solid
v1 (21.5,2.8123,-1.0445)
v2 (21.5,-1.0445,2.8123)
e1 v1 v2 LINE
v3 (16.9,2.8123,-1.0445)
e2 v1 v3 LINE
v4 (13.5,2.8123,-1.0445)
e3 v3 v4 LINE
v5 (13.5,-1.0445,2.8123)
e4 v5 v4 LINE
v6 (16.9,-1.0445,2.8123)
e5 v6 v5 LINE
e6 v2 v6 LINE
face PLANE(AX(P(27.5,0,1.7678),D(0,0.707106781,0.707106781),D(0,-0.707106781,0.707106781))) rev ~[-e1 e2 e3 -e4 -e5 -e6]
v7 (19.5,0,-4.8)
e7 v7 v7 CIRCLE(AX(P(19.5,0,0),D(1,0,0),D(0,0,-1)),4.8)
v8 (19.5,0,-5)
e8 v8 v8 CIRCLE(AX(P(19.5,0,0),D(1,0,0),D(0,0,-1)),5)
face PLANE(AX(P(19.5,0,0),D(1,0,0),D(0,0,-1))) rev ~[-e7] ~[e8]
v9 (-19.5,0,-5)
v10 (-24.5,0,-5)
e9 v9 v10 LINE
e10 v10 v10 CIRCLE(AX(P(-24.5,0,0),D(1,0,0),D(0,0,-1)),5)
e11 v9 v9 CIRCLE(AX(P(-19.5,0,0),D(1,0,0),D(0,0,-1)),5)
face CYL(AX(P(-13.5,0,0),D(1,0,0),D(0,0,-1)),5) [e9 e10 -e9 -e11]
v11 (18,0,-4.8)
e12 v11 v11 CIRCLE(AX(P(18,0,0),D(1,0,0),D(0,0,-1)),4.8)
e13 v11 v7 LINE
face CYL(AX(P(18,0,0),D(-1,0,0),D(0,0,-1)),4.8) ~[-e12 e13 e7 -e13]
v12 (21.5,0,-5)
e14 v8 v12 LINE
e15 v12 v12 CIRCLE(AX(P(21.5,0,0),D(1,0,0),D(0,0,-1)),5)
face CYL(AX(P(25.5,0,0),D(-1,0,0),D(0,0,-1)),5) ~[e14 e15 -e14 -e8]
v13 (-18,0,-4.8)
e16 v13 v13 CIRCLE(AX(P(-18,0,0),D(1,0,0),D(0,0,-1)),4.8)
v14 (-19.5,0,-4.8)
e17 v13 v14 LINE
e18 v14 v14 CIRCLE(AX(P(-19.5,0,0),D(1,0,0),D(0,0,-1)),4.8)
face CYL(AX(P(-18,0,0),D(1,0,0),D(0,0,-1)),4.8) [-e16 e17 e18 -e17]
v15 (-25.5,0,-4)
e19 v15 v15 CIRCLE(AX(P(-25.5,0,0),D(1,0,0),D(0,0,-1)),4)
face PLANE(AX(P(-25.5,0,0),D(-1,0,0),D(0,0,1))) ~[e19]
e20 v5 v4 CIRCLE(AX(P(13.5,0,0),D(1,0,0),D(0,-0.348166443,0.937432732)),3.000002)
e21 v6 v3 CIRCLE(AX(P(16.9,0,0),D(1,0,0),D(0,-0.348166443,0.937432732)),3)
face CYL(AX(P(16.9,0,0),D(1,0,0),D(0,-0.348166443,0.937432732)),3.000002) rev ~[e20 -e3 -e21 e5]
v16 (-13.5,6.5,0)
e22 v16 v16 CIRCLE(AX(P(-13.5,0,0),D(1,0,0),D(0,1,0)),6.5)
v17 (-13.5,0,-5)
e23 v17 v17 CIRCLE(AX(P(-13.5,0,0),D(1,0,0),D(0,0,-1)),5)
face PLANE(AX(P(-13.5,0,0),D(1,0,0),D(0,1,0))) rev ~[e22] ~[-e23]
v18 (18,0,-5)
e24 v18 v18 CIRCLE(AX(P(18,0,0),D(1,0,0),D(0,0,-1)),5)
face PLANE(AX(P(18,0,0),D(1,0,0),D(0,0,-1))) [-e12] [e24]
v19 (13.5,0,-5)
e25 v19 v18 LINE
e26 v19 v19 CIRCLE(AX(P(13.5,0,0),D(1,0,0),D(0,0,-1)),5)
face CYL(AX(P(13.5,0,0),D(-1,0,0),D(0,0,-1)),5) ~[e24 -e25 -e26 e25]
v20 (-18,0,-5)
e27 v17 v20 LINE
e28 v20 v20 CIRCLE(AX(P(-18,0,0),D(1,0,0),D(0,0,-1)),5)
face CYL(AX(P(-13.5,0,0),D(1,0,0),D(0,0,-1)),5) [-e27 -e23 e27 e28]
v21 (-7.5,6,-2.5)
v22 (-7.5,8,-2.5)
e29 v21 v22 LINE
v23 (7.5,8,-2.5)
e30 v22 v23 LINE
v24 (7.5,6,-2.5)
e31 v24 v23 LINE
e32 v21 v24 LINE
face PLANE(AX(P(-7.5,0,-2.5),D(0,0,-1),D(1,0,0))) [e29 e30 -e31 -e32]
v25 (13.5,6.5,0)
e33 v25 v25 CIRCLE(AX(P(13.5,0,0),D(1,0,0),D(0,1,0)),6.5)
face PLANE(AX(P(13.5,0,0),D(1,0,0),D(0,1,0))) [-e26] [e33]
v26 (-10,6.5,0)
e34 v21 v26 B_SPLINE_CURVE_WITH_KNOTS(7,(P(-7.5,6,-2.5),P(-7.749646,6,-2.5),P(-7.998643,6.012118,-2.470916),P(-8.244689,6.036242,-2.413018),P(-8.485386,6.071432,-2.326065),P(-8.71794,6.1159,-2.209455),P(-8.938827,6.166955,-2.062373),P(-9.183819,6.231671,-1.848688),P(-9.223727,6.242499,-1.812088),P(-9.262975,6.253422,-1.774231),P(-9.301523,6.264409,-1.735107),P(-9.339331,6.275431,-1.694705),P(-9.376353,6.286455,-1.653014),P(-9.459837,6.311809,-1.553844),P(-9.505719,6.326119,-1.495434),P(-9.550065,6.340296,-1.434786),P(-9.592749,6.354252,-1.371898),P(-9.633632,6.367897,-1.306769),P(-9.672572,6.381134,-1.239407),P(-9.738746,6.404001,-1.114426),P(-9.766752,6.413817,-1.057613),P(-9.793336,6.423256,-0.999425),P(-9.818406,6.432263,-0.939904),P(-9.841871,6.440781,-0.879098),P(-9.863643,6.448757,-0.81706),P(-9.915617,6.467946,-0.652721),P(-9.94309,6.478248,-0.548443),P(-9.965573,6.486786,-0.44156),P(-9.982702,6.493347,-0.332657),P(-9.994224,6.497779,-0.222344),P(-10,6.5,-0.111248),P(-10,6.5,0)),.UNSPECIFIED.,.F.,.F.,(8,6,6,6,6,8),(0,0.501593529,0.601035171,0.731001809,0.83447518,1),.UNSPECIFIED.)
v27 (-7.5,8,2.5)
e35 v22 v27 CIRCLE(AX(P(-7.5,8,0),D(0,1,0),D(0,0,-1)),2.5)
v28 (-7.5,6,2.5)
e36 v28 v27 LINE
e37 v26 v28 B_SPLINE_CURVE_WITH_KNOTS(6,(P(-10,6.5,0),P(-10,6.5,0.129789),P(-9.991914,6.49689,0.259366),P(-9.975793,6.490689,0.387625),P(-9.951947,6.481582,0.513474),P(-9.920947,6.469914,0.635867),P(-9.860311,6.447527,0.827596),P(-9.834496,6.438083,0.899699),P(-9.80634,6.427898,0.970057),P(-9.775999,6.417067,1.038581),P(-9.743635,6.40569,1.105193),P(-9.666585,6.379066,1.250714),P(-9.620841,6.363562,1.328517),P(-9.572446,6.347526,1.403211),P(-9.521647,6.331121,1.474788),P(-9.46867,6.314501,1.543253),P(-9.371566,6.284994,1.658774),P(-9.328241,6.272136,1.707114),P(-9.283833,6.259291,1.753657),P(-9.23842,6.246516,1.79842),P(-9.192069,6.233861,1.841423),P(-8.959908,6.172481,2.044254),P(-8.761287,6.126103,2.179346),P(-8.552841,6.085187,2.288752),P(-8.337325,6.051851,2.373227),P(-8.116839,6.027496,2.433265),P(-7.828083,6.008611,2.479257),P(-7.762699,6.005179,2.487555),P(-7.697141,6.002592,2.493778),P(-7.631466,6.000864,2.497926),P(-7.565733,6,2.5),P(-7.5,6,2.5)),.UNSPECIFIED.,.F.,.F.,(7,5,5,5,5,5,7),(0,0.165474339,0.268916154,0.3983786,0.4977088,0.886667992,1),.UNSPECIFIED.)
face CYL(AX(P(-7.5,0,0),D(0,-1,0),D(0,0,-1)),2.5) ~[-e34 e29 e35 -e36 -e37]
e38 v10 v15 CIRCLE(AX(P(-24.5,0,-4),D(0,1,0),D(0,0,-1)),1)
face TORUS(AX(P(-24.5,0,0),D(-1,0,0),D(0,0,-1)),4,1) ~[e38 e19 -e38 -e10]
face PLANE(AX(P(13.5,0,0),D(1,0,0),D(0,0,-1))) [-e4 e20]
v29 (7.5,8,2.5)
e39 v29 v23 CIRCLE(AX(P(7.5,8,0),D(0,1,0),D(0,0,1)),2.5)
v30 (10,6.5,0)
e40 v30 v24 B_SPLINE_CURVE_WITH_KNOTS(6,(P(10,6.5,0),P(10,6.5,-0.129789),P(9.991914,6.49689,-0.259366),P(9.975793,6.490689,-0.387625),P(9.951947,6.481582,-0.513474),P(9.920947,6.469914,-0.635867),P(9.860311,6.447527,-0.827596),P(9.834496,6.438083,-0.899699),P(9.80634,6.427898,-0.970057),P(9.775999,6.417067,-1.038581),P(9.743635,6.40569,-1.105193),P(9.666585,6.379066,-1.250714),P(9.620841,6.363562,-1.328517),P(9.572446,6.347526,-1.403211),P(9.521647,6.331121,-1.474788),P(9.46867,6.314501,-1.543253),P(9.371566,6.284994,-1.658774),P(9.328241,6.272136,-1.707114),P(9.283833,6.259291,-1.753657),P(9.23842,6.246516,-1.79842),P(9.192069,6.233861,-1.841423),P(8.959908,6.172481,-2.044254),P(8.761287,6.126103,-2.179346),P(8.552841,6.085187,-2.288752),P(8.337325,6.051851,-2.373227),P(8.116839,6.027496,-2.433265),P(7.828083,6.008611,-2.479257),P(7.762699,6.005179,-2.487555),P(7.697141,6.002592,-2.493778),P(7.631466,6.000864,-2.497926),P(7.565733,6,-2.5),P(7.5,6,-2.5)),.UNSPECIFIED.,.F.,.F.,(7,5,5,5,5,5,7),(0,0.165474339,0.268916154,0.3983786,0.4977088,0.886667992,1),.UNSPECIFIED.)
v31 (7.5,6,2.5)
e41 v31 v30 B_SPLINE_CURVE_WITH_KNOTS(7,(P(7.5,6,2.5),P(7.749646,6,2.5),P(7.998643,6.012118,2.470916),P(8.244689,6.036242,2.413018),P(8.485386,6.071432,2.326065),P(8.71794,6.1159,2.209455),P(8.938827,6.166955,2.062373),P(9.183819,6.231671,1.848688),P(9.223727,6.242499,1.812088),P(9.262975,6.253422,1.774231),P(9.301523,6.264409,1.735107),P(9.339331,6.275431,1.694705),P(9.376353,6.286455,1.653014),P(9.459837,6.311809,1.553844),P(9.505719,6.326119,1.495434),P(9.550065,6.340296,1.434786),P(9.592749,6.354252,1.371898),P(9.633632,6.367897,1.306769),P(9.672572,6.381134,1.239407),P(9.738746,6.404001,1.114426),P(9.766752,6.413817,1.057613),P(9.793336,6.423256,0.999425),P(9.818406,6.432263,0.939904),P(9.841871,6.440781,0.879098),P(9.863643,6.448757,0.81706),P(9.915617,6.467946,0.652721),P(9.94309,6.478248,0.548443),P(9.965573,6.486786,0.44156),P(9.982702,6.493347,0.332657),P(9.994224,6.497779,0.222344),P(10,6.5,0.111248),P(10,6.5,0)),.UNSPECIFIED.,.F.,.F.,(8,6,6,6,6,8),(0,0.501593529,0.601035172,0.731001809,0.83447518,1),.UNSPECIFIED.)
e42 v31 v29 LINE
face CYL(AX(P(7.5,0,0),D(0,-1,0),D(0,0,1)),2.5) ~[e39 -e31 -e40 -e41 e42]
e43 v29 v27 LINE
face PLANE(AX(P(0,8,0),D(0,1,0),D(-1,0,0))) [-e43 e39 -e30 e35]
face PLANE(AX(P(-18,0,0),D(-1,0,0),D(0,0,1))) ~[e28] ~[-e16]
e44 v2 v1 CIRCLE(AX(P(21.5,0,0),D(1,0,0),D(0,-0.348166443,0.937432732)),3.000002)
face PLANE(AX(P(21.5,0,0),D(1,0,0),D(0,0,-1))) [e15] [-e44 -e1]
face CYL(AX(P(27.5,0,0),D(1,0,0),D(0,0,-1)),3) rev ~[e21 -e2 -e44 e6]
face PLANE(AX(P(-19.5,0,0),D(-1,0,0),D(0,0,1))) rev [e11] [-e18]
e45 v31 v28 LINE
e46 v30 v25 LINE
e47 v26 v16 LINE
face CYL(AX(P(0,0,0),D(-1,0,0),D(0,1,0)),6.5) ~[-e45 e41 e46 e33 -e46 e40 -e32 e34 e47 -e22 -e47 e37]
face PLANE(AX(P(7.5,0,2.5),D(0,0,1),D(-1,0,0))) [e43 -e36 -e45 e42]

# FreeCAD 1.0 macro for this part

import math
import FreeCAD as App
import Part
import Sketcher

V = App.Vector
Q = App.Units.Quantity


def edges_at(feature, points):
    """Names of the edges that pass closest to the given points."""
    edges = feature.Shape.Edges
    near = lambda p: min(range(len(edges)), key=lambda i: edges[i].distToShape(Part.Vertex(*p))[0])
    return sorted({f"Edge{near(p) + 1}" for p in points})

doc = App.newDocument("Part")
params = doc.addObject("Spreadsheet::Sheet", "Params")
for row, (alias, value) in enumerate([
    ("sketch1_diameter", "13 mm"),
    ("pad1_length", "27 mm"),
    ("sketch2_diameter", "10 mm"),
    ("pad2_length", "12 mm"),
    ("sketch3_diameter", "9.6 mm"),
    ("sketch3_diameter2", "10 mm"),
    ("pocket1_length", "1.5 mm"),
    ("sketch4_radius", "2.5 mm"),
    ("sketch4_width", "15 mm"),
    ("pad3_length", "8 mm"),
    ("fillet_radius", "1 mm"),
    ("sketch5_diameter", "10 mm"),
    ("pad4_length", "2 mm"),
    ("sketch6_radius", "3 mm"),
    ("pocket2_length", "10.6 mm"),
    ("sketch7_diameter", "10 mm"),
    ("sketch7_radius", "3 mm"),
    ("pocket3_length", "4.6 mm"),
    ("sketch8_diameter", "10 mm"),
    ("sketch8_radius", "3 mm"),
    ("pocket4_length", "1.4 mm"),
    ("sketch9_radius", "3 mm"),
    ("pocket5_length", "3.4 mm"),
], start=1):
    params.set(f"A{row}", alias)
    params.set(f"B{row}", "=" + value)
    params.setAlias(f"B{row}", alias)

body = doc.addObject("PartDesign::Body", "Body")

# Sketch on YZ plane
sketch1 = body.newObject("Sketcher::SketchObject", "Sketch")
sketch1.AttachmentSupport = (doc.getObject("YZ_Plane"), [""])
sketch1.MapMode = "FlatFace"
sketch1.addGeometry(Part.Circle(V(0, 0, 0), V(0, 0, 1), 6), False)
sketch1.addConstraint([
    Sketcher.Constraint("Coincident", 0, 3, -1, 1),
    Sketcher.Constraint("Diameter", 0, Q("13 mm")),
])
sketch1.setExpression("Constraints[1]", "Params.sketch1_diameter")
pad1 = body.newObject("PartDesign::Pad", "Pad")
pad1.Profile = sketch1
pad1.setExpression("Length", "Params.pad1_length")
pad1.Midplane = True

# Sketch on YZ plane
sketch2 = body.newObject("Sketcher::SketchObject", "Sketch001")
sketch2.AttachmentSupport = (doc.getObject("YZ_Plane"), [""])
sketch2.MapMode = "FlatFace"
sketch2.AttachmentOffset = App.Placement(V(0, 0, 13.5), App.Rotation())
sketch2.addGeometry(Part.Circle(V(0, 0, 0), V(0, 0, 1), 5), False)
sketch2.addConstraint([
    Sketcher.Constraint("Coincident", 0, 3, -1, 1),
    Sketcher.Constraint("Diameter", 0, Q("10 mm")),
])
sketch2.setExpression("Constraints[1]", "Params.sketch2_diameter")
pad2 = body.newObject("PartDesign::Pad", "Pad001")
pad2.Profile = sketch2
pad2.setExpression("Length", "Params.pad2_length")

# Sketch on YZ plane
sketch3 = body.newObject("Sketcher::SketchObject", "Sketch002")
sketch3.AttachmentSupport = (doc.getObject("YZ_Plane"), [""])
sketch3.MapMode = "FlatFace"
sketch3.AttachmentOffset = App.Placement(V(0, 0, 18), App.Rotation())
sketch3.addGeometry([
    Part.Circle(V(0, 0, 0), V(0, 0, 1), 5),
    Part.Circle(V(0, 0, 0), V(0, 0, 1), 4.8),
], False)
sketch3.addConstraint([
    Sketcher.Constraint("Coincident", 0, 3, -1, 1),
    Sketcher.Constraint("Coincident", 1, 3, -1, 1),
    Sketcher.Constraint("Diameter", 1, Q("9.6 mm")),
    Sketcher.Constraint("Diameter", 0, Q("10 mm")),
])
sketch3.setExpression("Constraints[2]", "Params.sketch3_diameter")
sketch3.setExpression("Constraints[3]", "Params.sketch3_diameter2")
pocket1 = body.newObject("PartDesign::Pocket", "Pocket")
pocket1.Profile = sketch3
pocket1.setExpression("Length", "Params.pocket1_length")
pocket1.Reversed = True
doc.recompute()

mirrored = body.newObject("PartDesign::Mirrored", "Mirrored")
mirrored.Originals = [pad2, pocket1]
mirrored.MirrorPlane = (doc.getObject("YZ_Plane"), [""])
body.Tip = mirrored

# Sketch on XZ plane
sketch4 = body.newObject("Sketcher::SketchObject", "Sketch003")
sketch4.AttachmentSupport = (doc.getObject("XZ_Plane"), [""])
sketch4.MapMode = "FlatFace"
sketch4.addGeometry([
    Part.LineSegment(V(7.5, -2.5, 0), V(-7.5, -2.5, 0)),
    Part.ArcOfCircle(Part.Circle(V(-7.5, 0, 0), V(0, 0, 1), 2.5), math.radians(90), math.radians(270)),
    Part.LineSegment(V(-7.5, 2.5, 0), V(7.5, 2.5, 0)),
    Part.ArcOfCircle(Part.Circle(V(7.5, 0, 0), V(0, 0, 1), 2.5), math.radians(-90), math.radians(90)),
], False)
sketch4.addConstraint([
    Sketcher.Constraint("Tangent", 0, 2, 1, 2),
    Sketcher.Constraint("Tangent", 1, 1, 2, 1),
    Sketcher.Constraint("Tangent", 2, 2, 3, 2),
    Sketcher.Constraint("Tangent", 3, 1, 0, 1),
    Sketcher.Constraint("Horizontal", 0),
    Sketcher.Constraint("Horizontal", 2),
    Sketcher.Constraint("Symmetric", 1, 3, 3, 3, -1, 1),
    Sketcher.Constraint("Radius", 1, Q("2.5 mm")),
    Sketcher.Constraint("DistanceX", 0, 2, 0, 1, Q("15 mm")),
])
sketch4.setExpression("Constraints[7]", "Params.sketch4_radius")
sketch4.setExpression("Constraints[8]", "Params.sketch4_width")
pad3 = body.newObject("PartDesign::Pad", "Pad002")
pad3.Profile = sketch4
pad3.setExpression("Length", "Params.pad3_length")
pad3.Reversed = True
doc.recompute()

fillet = body.newObject("PartDesign::Fillet", "Fillet")
fillet.Base = (pad3, edges_at(pad3, [(-25.5, 0, 5)]))
fillet.setExpression("Radius", "Params.fillet_radius")

# Sketch on YZ plane
sketch5 = body.newObject("Sketcher::SketchObject", "Sketch004")
sketch5.AttachmentSupport = (doc.getObject("YZ_Plane"), [""])
sketch5.MapMode = "FlatFace"
sketch5.AttachmentOffset = App.Placement(V(0, 0, 25.5), App.Rotation())
sketch5.addGeometry(Part.Circle(V(0, 0, 0), V(0, 0, 1), 5), False)
sketch5.addConstraint([
    Sketcher.Constraint("Coincident", 0, 3, -1, 1),
    Sketcher.Constraint("Diameter", 0, Q("10 mm")),
])
sketch5.setExpression("Constraints[1]", "Params.sketch5_diameter")
pad4 = body.newObject("PartDesign::Pad", "Pad003")
pad4.Profile = sketch5
pad4.setExpression("Length", "Params.pad4_length")

# Sketch on YZ plane
sketch6 = body.newObject("Sketcher::SketchObject", "Sketch005")
sketch6.AttachmentSupport = (doc.getObject("YZ_Plane"), [""])
sketch6.MapMode = "FlatFace"
sketch6.AttachmentOffset = App.Placement(V(0, 0, 27.5), App.Rotation())
sketch6.addGeometry([
    Part.ArcOfCircle(Part.Circle(V(0, 0, 0), V(0, 0, 1), 3), math.radians(110), math.radians(340)),
    Part.LineSegment(V(-1, 2.8, 0), V(2.8, -1, 0)),
], False)
sketch6.addConstraint([
    Sketcher.Constraint("Coincident", 0, 1, 1, 1),
    Sketcher.Constraint("Coincident", 1, 2, 0, 2),
    Sketcher.Constraint("Coincident", 0, 3, -1, 1),
    Sketcher.Constraint("Radius", 0, Q("3 mm")),
    Sketcher.Constraint("Angle", 1, Q("-45 deg")),
    Sketcher.Constraint("Distance", 1, Q("5.4543 mm")),
])
sketch6.setExpression("Constraints[3]", "Params.sketch6_radius")
pocket2 = body.newObject("PartDesign::Pocket", "Pocket001")
pocket2.Profile = sketch6
pocket2.setExpression("Length", "Params.pocket2_length")

# Sketch on YZ plane
sketch7 = body.newObject("Sketcher::SketchObject", "Sketch006")
sketch7.AttachmentSupport = (doc.getObject("YZ_Plane"), [""])
sketch7.MapMode = "FlatFace"
sketch7.AttachmentOffset = App.Placement(V(0, 0, 27.5), App.Rotation())
sketch7.addGeometry([
    Part.Circle(V(0, 0, 0), V(0, 0, 1), 5),
    Part.ArcOfCircle(Part.Circle(V(0, 0, 0), V(0, 0, 1), 3), math.radians(110), math.radians(340)),
    Part.LineSegment(V(-1, 2.8, 0), V(2.8, -1, 0)),
], False)
sketch7.addConstraint([
    Sketcher.Constraint("Coincident", 1, 1, 2, 1),
    Sketcher.Constraint("Coincident", 2, 2, 1, 2),
    Sketcher.Constraint("Coincident", 0, 3, -1, 1),
    Sketcher.Constraint("Coincident", 1, 3, -1, 1),
    Sketcher.Constraint("Diameter", 0, Q("10 mm")),
    Sketcher.Constraint("Radius", 1, Q("3 mm")),
    Sketcher.Constraint("Angle", 2, Q("-45 deg")),
    Sketcher.Constraint("Distance", 2, Q("5.4543 mm")),
])
sketch7.setExpression("Constraints[4]", "Params.sketch7_diameter")
sketch7.setExpression("Constraints[5]", "Params.sketch7_radius")
pocket3 = body.newObject("PartDesign::Pocket", "Pocket002")
pocket3.Profile = sketch7
pocket3.setExpression("Length", "Params.pocket3_length")

# Sketch on YZ plane
sketch8 = body.newObject("Sketcher::SketchObject", "Sketch007")
sketch8.AttachmentSupport = (doc.getObject("YZ_Plane"), [""])
sketch8.MapMode = "FlatFace"
sketch8.AttachmentOffset = App.Placement(V(0, 0, 22.9), App.Rotation())
sketch8.addGeometry([
    Part.Circle(V(0, 0, 0), V(0, 0, 1), 5),
    Part.LineSegment(V(-1, 2.8, 0), V(2.8, -1, 0)),
    Part.ArcOfCircle(Part.Circle(V(0, 0, 0), V(0, 0, 1), 3), math.radians(110), math.radians(340)),
], False)
sketch8.addConstraint([
    Sketcher.Constraint("Coincident", 1, 1, 2, 1),
    Sketcher.Constraint("Coincident", 2, 2, 1, 2),
    Sketcher.Constraint("Coincident", 0, 3, -1, 1),
    Sketcher.Constraint("Coincident", 2, 3, -1, 1),
    Sketcher.Constraint("Diameter", 0, Q("10 mm")),
    Sketcher.Constraint("Radius", 2, Q("3 mm")),
    Sketcher.Constraint("Angle", 1, Q("-45 deg")),
    Sketcher.Constraint("Distance", 1, Q("5.4543 mm")),
])
sketch8.setExpression("Constraints[4]", "Params.sketch8_diameter")
sketch8.setExpression("Constraints[5]", "Params.sketch8_radius")
pocket4 = body.newObject("PartDesign::Pocket", "Pocket003")
pocket4.Profile = sketch8
pocket4.setExpression("Length", "Params.pocket4_length")

# Sketch on YZ plane
sketch9 = body.newObject("Sketcher::SketchObject", "Sketch008")
sketch9.AttachmentSupport = (doc.getObject("YZ_Plane"), [""])
sketch9.MapMode = "FlatFace"
sketch9.AttachmentOffset = App.Placement(V(0, 0, 16.9), App.Rotation())
sketch9.addGeometry([
    Part.LineSegment(V(2.8, -1, 0), V(-1, 2.8, 0)),
    Part.ArcOfCircle(Part.Circle(V(0, 0, 0), V(0, 0, 1), 3), math.radians(110), math.radians(340)),
], False)
sketch9.addConstraint([
    Sketcher.Constraint("Coincident", 0, 1, 1, 2),
    Sketcher.Constraint("Coincident", 1, 1, 0, 2),
    Sketcher.Constraint("Coincident", 1, 3, -1, 1),
    Sketcher.Constraint("Radius", 1, Q("3 mm")),
    Sketcher.Constraint("Angle", 0, Q("135 deg")),
    Sketcher.Constraint("Distance", 0, Q("5.4543 mm")),
])
sketch9.setExpression("Constraints[3]", "Params.sketch9_radius")
pocket5 = body.newObject("PartDesign::Pocket", "Pocket004")
pocket5.Profile = sketch9
pocket5.setExpression("Length", "Params.pocket5_length")

doc.recompute()
